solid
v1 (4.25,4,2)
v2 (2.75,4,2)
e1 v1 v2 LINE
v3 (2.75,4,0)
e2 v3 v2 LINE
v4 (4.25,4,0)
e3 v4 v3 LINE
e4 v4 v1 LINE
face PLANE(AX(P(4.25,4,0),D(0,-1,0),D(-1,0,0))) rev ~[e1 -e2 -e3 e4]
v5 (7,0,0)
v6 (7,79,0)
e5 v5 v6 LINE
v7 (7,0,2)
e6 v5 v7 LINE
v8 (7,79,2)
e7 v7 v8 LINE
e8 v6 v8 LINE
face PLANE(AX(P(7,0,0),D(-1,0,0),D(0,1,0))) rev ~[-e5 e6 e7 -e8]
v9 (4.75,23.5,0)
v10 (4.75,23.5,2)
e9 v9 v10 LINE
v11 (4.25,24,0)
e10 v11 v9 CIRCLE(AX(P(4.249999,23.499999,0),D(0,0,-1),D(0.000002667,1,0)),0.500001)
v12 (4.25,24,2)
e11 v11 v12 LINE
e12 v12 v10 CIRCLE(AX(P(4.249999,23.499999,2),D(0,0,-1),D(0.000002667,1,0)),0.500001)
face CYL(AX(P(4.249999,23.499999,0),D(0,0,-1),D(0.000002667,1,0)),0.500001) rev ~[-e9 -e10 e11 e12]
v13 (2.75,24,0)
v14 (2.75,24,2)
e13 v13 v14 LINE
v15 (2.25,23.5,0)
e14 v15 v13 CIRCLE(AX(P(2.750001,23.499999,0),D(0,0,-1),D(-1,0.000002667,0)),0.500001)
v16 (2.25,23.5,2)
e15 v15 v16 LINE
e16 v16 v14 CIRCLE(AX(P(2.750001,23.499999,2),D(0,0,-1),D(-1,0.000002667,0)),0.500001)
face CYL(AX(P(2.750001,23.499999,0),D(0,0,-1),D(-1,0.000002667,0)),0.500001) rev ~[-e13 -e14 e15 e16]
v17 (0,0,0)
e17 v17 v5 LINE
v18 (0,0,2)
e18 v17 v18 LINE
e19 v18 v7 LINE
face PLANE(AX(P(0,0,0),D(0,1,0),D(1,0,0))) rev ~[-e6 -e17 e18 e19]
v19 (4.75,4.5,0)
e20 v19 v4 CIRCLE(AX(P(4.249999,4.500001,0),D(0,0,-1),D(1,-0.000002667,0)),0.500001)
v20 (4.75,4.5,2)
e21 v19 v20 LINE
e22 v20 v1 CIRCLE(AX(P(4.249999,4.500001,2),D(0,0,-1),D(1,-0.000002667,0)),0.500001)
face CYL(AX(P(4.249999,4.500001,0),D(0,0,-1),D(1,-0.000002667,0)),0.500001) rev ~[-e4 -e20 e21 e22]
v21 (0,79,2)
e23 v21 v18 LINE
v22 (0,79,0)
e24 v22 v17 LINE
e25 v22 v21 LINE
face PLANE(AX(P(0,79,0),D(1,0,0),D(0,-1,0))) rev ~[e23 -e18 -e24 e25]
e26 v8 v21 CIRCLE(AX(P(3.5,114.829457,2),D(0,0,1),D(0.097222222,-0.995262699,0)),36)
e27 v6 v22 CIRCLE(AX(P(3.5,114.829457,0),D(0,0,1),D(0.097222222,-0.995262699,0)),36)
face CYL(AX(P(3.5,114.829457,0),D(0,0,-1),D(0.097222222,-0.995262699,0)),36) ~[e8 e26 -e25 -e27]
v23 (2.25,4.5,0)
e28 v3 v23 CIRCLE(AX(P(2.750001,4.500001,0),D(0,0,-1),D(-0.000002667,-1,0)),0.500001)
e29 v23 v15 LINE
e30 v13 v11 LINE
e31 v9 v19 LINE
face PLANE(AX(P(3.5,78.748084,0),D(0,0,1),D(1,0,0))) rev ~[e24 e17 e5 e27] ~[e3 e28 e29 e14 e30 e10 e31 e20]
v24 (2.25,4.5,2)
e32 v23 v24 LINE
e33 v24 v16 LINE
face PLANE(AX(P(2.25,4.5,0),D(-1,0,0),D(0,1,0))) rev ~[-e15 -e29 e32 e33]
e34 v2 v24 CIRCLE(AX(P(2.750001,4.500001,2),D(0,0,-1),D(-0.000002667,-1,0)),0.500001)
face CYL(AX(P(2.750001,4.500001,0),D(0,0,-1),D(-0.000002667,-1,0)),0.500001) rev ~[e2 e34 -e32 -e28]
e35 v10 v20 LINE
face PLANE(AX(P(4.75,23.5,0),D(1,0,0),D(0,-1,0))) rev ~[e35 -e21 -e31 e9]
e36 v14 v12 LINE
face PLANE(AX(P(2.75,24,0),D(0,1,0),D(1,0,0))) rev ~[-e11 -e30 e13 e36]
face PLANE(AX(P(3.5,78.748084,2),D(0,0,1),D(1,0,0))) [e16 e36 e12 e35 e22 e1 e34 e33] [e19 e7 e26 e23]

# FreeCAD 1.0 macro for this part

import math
import FreeCAD as App
import Part
import Sketcher

V = App.Vector
Q = App.Units.Quantity

doc = App.newDocument("Part")
body = doc.addObject("PartDesign::Body", "Body")

sketch1 = body.newObject("Sketcher::SketchObject", "Sketch")
sketch1.AttachmentSupport = (doc.getObject("XY_Plane"), [""])
sketch1.MapMode = "FlatFace"
sketch1.addGeometry(Part.LineSegment(V(0, 79, 0), V(0, 0, 0)), False)
sketch1.addGeometry(Part.LineSegment(V(0, 0, 0), V(7, 0, 0)), False)
sketch1.addGeometry(Part.LineSegment(V(7, 0, 0), V(7, 79, 0)), False)
sketch1.addGeometry(Part.ArcOfCircle(Part.Circle(V(3.5, 114.8, 0), V(0, 0, 1), 36), math.radians(-84), math.radians(264)), False)
sketch1.addGeometry(Part.LineSegment(V(2.2, 4.5, 0), V(2.2, 23.5, 0)), False)
sketch1.addGeometry(Part.ArcOfCircle(Part.Circle(V(2.8, 23.5, 0), V(0, 0, 1), 0.5), math.radians(90), math.radians(180)), False)
sketch1.addGeometry(Part.LineSegment(V(2.8, 24, 0), V(4.2, 24, 0)), False)
sketch1.addGeometry(Part.ArcOfCircle(Part.Circle(V(4.2, 23.5, 0), V(0, 0, 1), 0.5), math.radians(0), math.radians(90)), False)
sketch1.addGeometry(Part.LineSegment(V(4.8, 23.5, 0), V(4.8, 4.5, 0)), False)
sketch1.addGeometry(Part.ArcOfCircle(Part.Circle(V(4.2, 4.5, 0), V(0, 0, 1), 0.5), math.radians(-90), math.radians(0)), False)
sketch1.addGeometry(Part.LineSegment(V(4.2, 4, 0), V(2.8, 4, 0)), False)
sketch1.addGeometry(Part.ArcOfCircle(Part.Circle(V(2.8, 4.5, 0), V(0, 0, 1), 0.5), math.radians(-180), math.radians(-90)), False)
sketch1.addConstraint(Sketcher.Constraint("Coincident", 0, 2, 1, 1))
sketch1.addConstraint(Sketcher.Constraint("Coincident", 1, 2, 2, 1))
sketch1.addConstraint(Sketcher.Constraint("Coincident", 2, 2, 3, 1))
sketch1.addConstraint(Sketcher.Constraint("Coincident", 3, 2, 0, 1))
sketch1.addConstraint(Sketcher.Constraint("Coincident", 4, 2, 5, 2))
sketch1.addConstraint(Sketcher.Constraint("Coincident", 5, 1, 6, 1))
sketch1.addConstraint(Sketcher.Constraint("Coincident", 6, 2, 7, 2))
sketch1.addConstraint(Sketcher.Constraint("Coincident", 7, 1, 8, 1))
sketch1.addConstraint(Sketcher.Constraint("Coincident", 8, 2, 9, 2))
sketch1.addConstraint(Sketcher.Constraint("Coincident", 9, 1, 10, 1))
sketch1.addConstraint(Sketcher.Constraint("Coincident", 10, 2, 11, 2))
sketch1.addConstraint(Sketcher.Constraint("Coincident", 11, 1, 4, 1))
sketch1.addConstraint(Sketcher.Constraint("Vertical", 0))
sketch1.addConstraint(Sketcher.Constraint("Horizontal", 1))
sketch1.addConstraint(Sketcher.Constraint("Vertical", 2))
sketch1.addConstraint(Sketcher.Constraint("Vertical", 4))
sketch1.addConstraint(Sketcher.Constraint("Horizontal", 6))
sketch1.addConstraint(Sketcher.Constraint("Vertical", 8))
sketch1.addConstraint(Sketcher.Constraint("Horizontal", 10))
sketch1.addConstraint(Sketcher.Constraint("Coincident", 0, 2, -1, 1))
sketch1.addConstraint(Sketcher.Constraint("Equal", 5, 7))
sketch1.addConstraint(Sketcher.Constraint("Equal", 7, 9))
sketch1.addConstraint(Sketcher.Constraint("Equal", 9, 11))
sketch1.addConstraint(Sketcher.Constraint("Horizontal", 2, 2, 3, 2))
sketch1.addConstraint(Sketcher.Constraint("Horizontal", 7, 3, 4, 2))
sketch1.addConstraint(Sketcher.Constraint("Horizontal", 4, 2, 7, 1))
sketch1.addConstraint(Sketcher.Constraint("Horizontal", 11, 3, 8, 2))
sketch1.addConstraint(Sketcher.Constraint("Horizontal", 8, 2, 11, 1))
sketch1.addConstraint(Sketcher.Constraint("Vertical", 11, 3, 5, 1))
sketch1.addConstraint(Sketcher.Constraint("Vertical", 9, 3, 6, 2))
sketch1.addConstraint(Sketcher.Constraint("Vertical", 6, 2, 9, 1))
sketch1.addConstraint(Sketcher.Constraint("Vertical", 5, 1, 10, 2))
sketch1.addConstraint(Sketcher.Constraint("Radius", 3, Q("36 mm")))
sketch1.addConstraint(Sketcher.Constraint("Radius", 5, Q("0.500001 mm")))
sketch1.addConstraint(Sketcher.Constraint("DistanceX", 1, 1, 1, 2, Q("7 mm")))
sketch1.addConstraint(Sketcher.Constraint("DistanceY", 0, 2, 0, 1, Q("79 mm")))
sketch1.addConstraint(Sketcher.Constraint("DistanceY", 4, 1, 4, 2, Q("19 mm")))
sketch1.addConstraint(Sketcher.Constraint("DistanceX", 6, 1, 6, 2, Q("1.5 mm")))
sketch1.addConstraint(Sketcher.Constraint("DistanceY", -1, 1, 5, 1, Q("24 mm")))
sketch1.addConstraint(Sketcher.Constraint("DistanceX", -1, 1, 5, 3, Q("2.750001 mm")))
pad1 = body.newObject("PartDesign::Pad", "Pad")
pad1.Profile = sketch1
pad1.Length = 2

doc.recompute()
